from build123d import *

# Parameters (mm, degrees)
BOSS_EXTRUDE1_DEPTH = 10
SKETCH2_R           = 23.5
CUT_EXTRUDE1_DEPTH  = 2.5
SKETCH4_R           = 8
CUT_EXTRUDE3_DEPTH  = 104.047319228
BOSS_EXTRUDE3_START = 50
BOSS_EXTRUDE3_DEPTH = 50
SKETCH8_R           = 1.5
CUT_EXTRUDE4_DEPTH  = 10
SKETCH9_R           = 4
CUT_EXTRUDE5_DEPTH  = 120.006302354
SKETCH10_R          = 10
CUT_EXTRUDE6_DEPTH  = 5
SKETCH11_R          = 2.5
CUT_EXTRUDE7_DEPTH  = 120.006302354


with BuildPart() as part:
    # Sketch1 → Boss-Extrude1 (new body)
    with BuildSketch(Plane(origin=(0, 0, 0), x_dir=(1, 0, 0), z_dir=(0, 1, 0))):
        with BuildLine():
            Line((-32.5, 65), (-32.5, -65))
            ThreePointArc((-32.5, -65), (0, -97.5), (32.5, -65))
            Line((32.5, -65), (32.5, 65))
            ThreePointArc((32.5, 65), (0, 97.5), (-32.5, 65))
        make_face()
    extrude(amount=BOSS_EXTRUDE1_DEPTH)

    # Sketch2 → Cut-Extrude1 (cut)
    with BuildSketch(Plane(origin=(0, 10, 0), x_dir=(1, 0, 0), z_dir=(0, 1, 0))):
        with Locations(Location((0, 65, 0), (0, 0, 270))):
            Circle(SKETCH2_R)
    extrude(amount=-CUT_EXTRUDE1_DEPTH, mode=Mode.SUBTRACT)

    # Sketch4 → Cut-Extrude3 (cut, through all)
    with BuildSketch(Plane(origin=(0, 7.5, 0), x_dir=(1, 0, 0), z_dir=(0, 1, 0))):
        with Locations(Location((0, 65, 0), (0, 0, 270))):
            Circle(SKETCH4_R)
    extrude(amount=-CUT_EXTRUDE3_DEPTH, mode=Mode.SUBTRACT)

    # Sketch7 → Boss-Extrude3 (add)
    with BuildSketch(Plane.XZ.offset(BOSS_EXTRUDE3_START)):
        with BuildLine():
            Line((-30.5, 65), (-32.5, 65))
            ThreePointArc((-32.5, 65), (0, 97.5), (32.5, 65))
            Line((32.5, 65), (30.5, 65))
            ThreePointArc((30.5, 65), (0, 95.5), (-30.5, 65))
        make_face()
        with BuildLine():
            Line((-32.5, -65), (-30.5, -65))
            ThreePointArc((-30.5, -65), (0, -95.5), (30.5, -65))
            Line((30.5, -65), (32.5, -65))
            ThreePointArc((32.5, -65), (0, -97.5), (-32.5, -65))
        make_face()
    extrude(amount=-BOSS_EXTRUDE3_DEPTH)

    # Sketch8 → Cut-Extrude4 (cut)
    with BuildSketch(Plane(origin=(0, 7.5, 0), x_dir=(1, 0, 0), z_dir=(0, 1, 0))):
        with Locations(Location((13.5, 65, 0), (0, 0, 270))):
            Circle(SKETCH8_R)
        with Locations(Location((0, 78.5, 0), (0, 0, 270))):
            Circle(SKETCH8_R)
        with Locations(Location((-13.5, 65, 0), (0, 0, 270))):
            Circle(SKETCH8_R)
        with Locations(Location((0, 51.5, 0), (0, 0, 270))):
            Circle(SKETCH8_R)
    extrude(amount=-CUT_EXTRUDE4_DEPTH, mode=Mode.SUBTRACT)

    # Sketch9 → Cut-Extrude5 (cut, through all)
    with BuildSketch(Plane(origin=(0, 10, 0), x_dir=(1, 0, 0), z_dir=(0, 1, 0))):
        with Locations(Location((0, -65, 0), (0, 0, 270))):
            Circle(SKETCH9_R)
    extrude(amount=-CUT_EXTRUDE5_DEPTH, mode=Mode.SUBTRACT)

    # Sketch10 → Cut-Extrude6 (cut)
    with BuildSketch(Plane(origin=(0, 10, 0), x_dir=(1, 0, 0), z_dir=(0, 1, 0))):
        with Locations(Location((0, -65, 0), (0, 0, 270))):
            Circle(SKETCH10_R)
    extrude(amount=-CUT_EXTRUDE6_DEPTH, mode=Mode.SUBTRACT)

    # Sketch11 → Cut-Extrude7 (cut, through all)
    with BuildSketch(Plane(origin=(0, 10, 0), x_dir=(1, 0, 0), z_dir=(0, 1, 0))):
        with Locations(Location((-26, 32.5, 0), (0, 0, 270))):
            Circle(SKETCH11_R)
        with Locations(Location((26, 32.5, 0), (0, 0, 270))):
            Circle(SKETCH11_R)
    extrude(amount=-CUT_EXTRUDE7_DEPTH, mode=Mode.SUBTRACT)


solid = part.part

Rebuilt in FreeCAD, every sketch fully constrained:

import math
import FreeCAD as App
import Part
import Sketcher

doc = App.newDocument("Part")
body = doc.addObject("PartDesign::Body", "Body")

# Sketch on XZ plane
sketch1 = doc.addObject("Sketcher::SketchObject", "Sketch")
body.addObject(sketch1)
sketch1.AttachmentSupport = (doc.XZ_Plane, [""])
sketch1.MapMode = "FlatFace"
sketch1.addGeometry([
    Part.LineSegment(App.Vector(-32.5, -65, 0), App.Vector(-32.5, 65, 0)),
    Part.ArcOfCircle(Part.Circle(App.Vector(0, 65, 0), App.Vector(0, 0, 1), 32.5), math.radians(0), math.radians(180)),
    Part.LineSegment(App.Vector(32.5, 65, 0), App.Vector(32.5, -65, 0)),
    Part.ArcOfCircle(Part.Circle(App.Vector(0, -65, 0), App.Vector(0, 0, 1), 32.5), math.radians(180), math.radians(360)),
], False)
sketch1.addConstraint([
    Sketcher.Constraint("Tangent", 0, 2, 1, 2),
    Sketcher.Constraint("Tangent", 1, 1, 2, 1),
    Sketcher.Constraint("Tangent", 2, 2, 3, 2),
    Sketcher.Constraint("Tangent", 3, 1, 0, 1),
    Sketcher.Constraint("Vertical", 0),
    Sketcher.Constraint("Vertical", 2),
    Sketcher.Constraint("Symmetric", 1, 3, 3, 3, -1, 1),
    Sketcher.Constraint("Radius", 1, 32.5),
    Sketcher.Constraint("DistanceY", 0, 1, 0, 2, 130.0),
])
pad1 = doc.addObject("PartDesign::Pad", "Pad")
body.addObject(pad1)
pad1.Profile = sketch1
pad1.Length = 10
pad1.Reversed = True

# Sketch on XZ plane
sketch2 = doc.addObject("Sketcher::SketchObject", "Sketch001")
body.addObject(sketch2)
sketch2.AttachmentSupport = (doc.XZ_Plane, [""])
sketch2.MapMode = "FlatFace"
sketch2.AttachmentOffset = App.Placement(App.Vector(0, 0, -10), App.Rotation())
sketch2.addGeometry(Part.Circle(App.Vector(0, -65, 0), App.Vector(0, 0, 1), 23.5), False)
sketch2.addConstraint([
    Sketcher.Constraint("PointOnObject", 0, 3, -2),
    Sketcher.Constraint("Diameter", 0, 47.0),
    Sketcher.Constraint("DistanceY", 0, 3, -1, 1, 65.0),
])
pocket1 = doc.addObject("PartDesign::Pocket", "Pocket")
body.addObject(pocket1)
pocket1.Profile = sketch2
pocket1.Length = 2.5
pocket1.Reversed = True

# Sketch on XZ plane
sketch3 = doc.addObject("Sketcher::SketchObject", "Sketch002")
body.addObject(sketch3)
sketch3.AttachmentSupport = (doc.XZ_Plane, [""])
sketch3.MapMode = "FlatFace"
sketch3.AttachmentOffset = App.Placement(App.Vector(0, 0, -7.5), App.Rotation())
sketch3.addGeometry(Part.Circle(App.Vector(0, -65, 0), App.Vector(0, 0, 1), 8), False)
sketch3.addConstraint([
    Sketcher.Constraint("PointOnObject", 0, 3, -2),
    Sketcher.Constraint("Diameter", 0, 16.0),
    Sketcher.Constraint("DistanceY", 0, 3, -1, 1, 65.0),
])
pocket2 = doc.addObject("PartDesign::Pocket", "Pocket001")
body.addObject(pocket2)
pocket2.Profile = sketch3
pocket2.Type = "ThroughAll"
pocket2.Reversed = True

# Sketch on XZ plane
sketch4 = doc.addObject("Sketcher::SketchObject", "Sketch003")
body.addObject(sketch4)
sketch4.AttachmentSupport = (doc.XZ_Plane, [""])
sketch4.MapMode = "FlatFace"
sketch4.AttachmentOffset = App.Placement(App.Vector(0, 0, 50), App.Rotation())
sketch4.addGeometry([
    Part.LineSegment(App.Vector(-32.5, 65, 0), App.Vector(-30.5, 65, 0)),  # 0
    Part.ArcOfCircle(Part.Circle(App.Vector(0, 65, 0), App.Vector(0, 0, 1), 30.5), math.radians(0), math.radians(180)),  # 1
    Part.LineSegment(App.Vector(30.5, 65, 0), App.Vector(32.5, 65, 0)),  # 2
    Part.ArcOfCircle(Part.Circle(App.Vector(0, 65, 0), App.Vector(0, 0, 1), 32.5), math.radians(0), math.radians(180)),  # 3
    Part.LineSegment(App.Vector(-30.5, -65, 0), App.Vector(-32.5, -65, 0)),  # 4
    Part.ArcOfCircle(Part.Circle(App.Vector(0, -65, 0), App.Vector(0, 0, 1), 32.5), math.radians(180), math.radians(360)),  # 5
    Part.LineSegment(App.Vector(32.5, -65, 0), App.Vector(30.5, -65, 0)),  # 6
    Part.ArcOfCircle(Part.Circle(App.Vector(0, -65, 0), App.Vector(0, 0, 1), 30.5), math.radians(180), math.radians(360)),  # 7
], False)
sketch4.addConstraint([
    Sketcher.Constraint("Coincident", 0, 2, 1, 2),
    Sketcher.Constraint("Coincident", 1, 1, 2, 1),
    Sketcher.Constraint("Coincident", 2, 2, 3, 1),
    Sketcher.Constraint("Coincident", 3, 2, 0, 1),
    Sketcher.Constraint("Coincident", 4, 2, 5, 1),
    Sketcher.Constraint("Coincident", 5, 2, 6, 1),
    Sketcher.Constraint("Coincident", 6, 2, 7, 2),
    Sketcher.Constraint("Coincident", 7, 1, 4, 1),
    Sketcher.Constraint("Horizontal", 0),
    Sketcher.Constraint("Horizontal", 2),
    Sketcher.Constraint("Horizontal", 4),
    Sketcher.Constraint("Horizontal", 6),
    Sketcher.Constraint("Coincident", 3, 3, 1, 3),
    Sketcher.Constraint("Coincident", 7, 3, 5, 3),
    Sketcher.Constraint("Equal", 3, 5),
    Sketcher.Constraint("Equal", 1, 7),
    Sketcher.Constraint("Symmetric", 1, 3, 5, 3, -1, 1),
    Sketcher.Constraint("Symmetric", 0, 2, 1, 1, -2),
    Sketcher.Constraint("Horizontal", 3, 3, 0, 2),
    Sketcher.Constraint("Horizontal", 7, 3, 4, 2),
    Sketcher.Constraint("Horizontal", 4, 2, 5, 2),
    Sketcher.Constraint("Radius", 1, 30.5),
    Sketcher.Constraint("Radius", 3, 32.5),
    Sketcher.Constraint("DistanceY", -1, 1, 1, 3, 65.0),
])
pad2 = doc.addObject("PartDesign::Pad", "Pad001")
body.addObject(pad2)
pad2.Profile = sketch4
pad2.Length = 50
pad2.Reversed = True

# Sketch on XZ plane
sketch5 = doc.addObject("Sketcher::SketchObject", "Sketch004")
body.addObject(sketch5)
sketch5.AttachmentSupport = (doc.XZ_Plane, [""])
sketch5.MapMode = "FlatFace"
sketch5.AttachmentOffset = App.Placement(App.Vector(0, 0, -7.5), App.Rotation())
sketch5.addGeometry([
    Part.Circle(App.Vector(13.5, -65, 0), App.Vector(0, 0, 1), 1.5),
    Part.Circle(App.Vector(0, -78.5, 0), App.Vector(0, 0, 1), 1.5),
    Part.Circle(App.Vector(-13.5, -65, 0), App.Vector(0, 0, 1), 1.5),
    Part.Circle(App.Vector(0, -51.5, 0), App.Vector(0, 0, 1), 1.5),
], False)
sketch5.addConstraint([
    Sketcher.Constraint("Equal", 0, 1),
    Sketcher.Constraint("Equal", 1, 2),
    Sketcher.Constraint("Equal", 2, 3),
    Sketcher.Constraint("Symmetric", 0, 3, 2, 3, -2),
    Sketcher.Constraint("PointOnObject", 1, 3, -2),
    Sketcher.Constraint("PointOnObject", 3, 3, -2),
    Sketcher.Constraint("Diameter", 0, 3.0),
    Sketcher.Constraint("DistanceY", 0, 3, -1, 1, 65.0),
    Sketcher.Constraint("DistanceX", 2, 3, 0, 3, 27.0),
    Sketcher.Constraint("DistanceY", 1, 3, 3, 3, 27.0),
    Sketcher.Constraint("DistanceY", 1, 3, -1, 1, 78.5),
])
pocket3 = doc.addObject("PartDesign::Pocket", "Pocket002")
body.addObject(pocket3)
pocket3.Profile = sketch5
pocket3.Length = 10
pocket3.Reversed = True

# Sketch on XZ plane
sketch6 = doc.addObject("Sketcher::SketchObject", "Sketch005")
body.addObject(sketch6)
sketch6.AttachmentSupport = (doc.XZ_Plane, [""])
sketch6.MapMode = "FlatFace"
sketch6.AttachmentOffset = App.Placement(App.Vector(0, 0, -10), App.Rotation())
sketch6.addGeometry(Part.Circle(App.Vector(0, 65, 0), App.Vector(0, 0, 1), 4), False)
sketch6.addConstraint([
    Sketcher.Constraint("PointOnObject", 0, 3, -2),
    Sketcher.Constraint("Diameter", 0, 8.0),
    Sketcher.Constraint("DistanceY", -1, 1, 0, 3, 65.0),
])
pocket4 = doc.addObject("PartDesign::Pocket", "Pocket003")
body.addObject(pocket4)
pocket4.Profile = sketch6
pocket4.Type = "ThroughAll"
pocket4.Reversed = True

# Sketch on XZ plane
sketch7 = doc.addObject("Sketcher::SketchObject", "Sketch006")
body.addObject(sketch7)
sketch7.AttachmentSupport = (doc.XZ_Plane, [""])
sketch7.MapMode = "FlatFace"
sketch7.AttachmentOffset = App.Placement(App.Vector(0, 0, -10), App.Rotation())
sketch7.addGeometry(Part.Circle(App.Vector(0, 65, 0), App.Vector(0, 0, 1), 10), False)
sketch7.addConstraint([
    Sketcher.Constraint("PointOnObject", 0, 3, -2),
    Sketcher.Constraint("Diameter", 0, 20.0),
    Sketcher.Constraint("DistanceY", -1, 1, 0, 3, 65.0),
])
pocket5 = doc.addObject("PartDesign::Pocket", "Pocket004")
body.addObject(pocket5)
pocket5.Profile = sketch7
pocket5.Length = 5
pocket5.Reversed = True

# Sketch on XZ plane
sketch8 = doc.addObject("Sketcher::SketchObject", "Sketch007")
body.addObject(sketch8)
sketch8.AttachmentSupport = (doc.XZ_Plane, [""])
sketch8.MapMode = "FlatFace"
sketch8.AttachmentOffset = App.Placement(App.Vector(0, 0, -10), App.Rotation())
sketch8.addGeometry([
    Part.Circle(App.Vector(-26, -32.5, 0), App.Vector(0, 0, 1), 2.5),
    Part.Circle(App.Vector(26, -32.5, 0), App.Vector(0, 0, 1), 2.5),
], False)
sketch8.addConstraint([
    Sketcher.Constraint("Equal", 0, 1),
    Sketcher.Constraint("Symmetric", 0, 3, 1, 3, -2),
    Sketcher.Constraint("Diameter", 0, 5.0),
    Sketcher.Constraint("DistanceX", 0, 3, -1, 1, 26.0),
    Sketcher.Constraint("DistanceY", 0, 3, -1, 1, 32.5),
])
pocket6 = doc.addObject("PartDesign::Pocket", "Pocket005")
body.addObject(pocket6)
pocket6.Profile = sketch8
pocket6.Type = "ThroughAll"
pocket6.Reversed = True

doc.recompute()
